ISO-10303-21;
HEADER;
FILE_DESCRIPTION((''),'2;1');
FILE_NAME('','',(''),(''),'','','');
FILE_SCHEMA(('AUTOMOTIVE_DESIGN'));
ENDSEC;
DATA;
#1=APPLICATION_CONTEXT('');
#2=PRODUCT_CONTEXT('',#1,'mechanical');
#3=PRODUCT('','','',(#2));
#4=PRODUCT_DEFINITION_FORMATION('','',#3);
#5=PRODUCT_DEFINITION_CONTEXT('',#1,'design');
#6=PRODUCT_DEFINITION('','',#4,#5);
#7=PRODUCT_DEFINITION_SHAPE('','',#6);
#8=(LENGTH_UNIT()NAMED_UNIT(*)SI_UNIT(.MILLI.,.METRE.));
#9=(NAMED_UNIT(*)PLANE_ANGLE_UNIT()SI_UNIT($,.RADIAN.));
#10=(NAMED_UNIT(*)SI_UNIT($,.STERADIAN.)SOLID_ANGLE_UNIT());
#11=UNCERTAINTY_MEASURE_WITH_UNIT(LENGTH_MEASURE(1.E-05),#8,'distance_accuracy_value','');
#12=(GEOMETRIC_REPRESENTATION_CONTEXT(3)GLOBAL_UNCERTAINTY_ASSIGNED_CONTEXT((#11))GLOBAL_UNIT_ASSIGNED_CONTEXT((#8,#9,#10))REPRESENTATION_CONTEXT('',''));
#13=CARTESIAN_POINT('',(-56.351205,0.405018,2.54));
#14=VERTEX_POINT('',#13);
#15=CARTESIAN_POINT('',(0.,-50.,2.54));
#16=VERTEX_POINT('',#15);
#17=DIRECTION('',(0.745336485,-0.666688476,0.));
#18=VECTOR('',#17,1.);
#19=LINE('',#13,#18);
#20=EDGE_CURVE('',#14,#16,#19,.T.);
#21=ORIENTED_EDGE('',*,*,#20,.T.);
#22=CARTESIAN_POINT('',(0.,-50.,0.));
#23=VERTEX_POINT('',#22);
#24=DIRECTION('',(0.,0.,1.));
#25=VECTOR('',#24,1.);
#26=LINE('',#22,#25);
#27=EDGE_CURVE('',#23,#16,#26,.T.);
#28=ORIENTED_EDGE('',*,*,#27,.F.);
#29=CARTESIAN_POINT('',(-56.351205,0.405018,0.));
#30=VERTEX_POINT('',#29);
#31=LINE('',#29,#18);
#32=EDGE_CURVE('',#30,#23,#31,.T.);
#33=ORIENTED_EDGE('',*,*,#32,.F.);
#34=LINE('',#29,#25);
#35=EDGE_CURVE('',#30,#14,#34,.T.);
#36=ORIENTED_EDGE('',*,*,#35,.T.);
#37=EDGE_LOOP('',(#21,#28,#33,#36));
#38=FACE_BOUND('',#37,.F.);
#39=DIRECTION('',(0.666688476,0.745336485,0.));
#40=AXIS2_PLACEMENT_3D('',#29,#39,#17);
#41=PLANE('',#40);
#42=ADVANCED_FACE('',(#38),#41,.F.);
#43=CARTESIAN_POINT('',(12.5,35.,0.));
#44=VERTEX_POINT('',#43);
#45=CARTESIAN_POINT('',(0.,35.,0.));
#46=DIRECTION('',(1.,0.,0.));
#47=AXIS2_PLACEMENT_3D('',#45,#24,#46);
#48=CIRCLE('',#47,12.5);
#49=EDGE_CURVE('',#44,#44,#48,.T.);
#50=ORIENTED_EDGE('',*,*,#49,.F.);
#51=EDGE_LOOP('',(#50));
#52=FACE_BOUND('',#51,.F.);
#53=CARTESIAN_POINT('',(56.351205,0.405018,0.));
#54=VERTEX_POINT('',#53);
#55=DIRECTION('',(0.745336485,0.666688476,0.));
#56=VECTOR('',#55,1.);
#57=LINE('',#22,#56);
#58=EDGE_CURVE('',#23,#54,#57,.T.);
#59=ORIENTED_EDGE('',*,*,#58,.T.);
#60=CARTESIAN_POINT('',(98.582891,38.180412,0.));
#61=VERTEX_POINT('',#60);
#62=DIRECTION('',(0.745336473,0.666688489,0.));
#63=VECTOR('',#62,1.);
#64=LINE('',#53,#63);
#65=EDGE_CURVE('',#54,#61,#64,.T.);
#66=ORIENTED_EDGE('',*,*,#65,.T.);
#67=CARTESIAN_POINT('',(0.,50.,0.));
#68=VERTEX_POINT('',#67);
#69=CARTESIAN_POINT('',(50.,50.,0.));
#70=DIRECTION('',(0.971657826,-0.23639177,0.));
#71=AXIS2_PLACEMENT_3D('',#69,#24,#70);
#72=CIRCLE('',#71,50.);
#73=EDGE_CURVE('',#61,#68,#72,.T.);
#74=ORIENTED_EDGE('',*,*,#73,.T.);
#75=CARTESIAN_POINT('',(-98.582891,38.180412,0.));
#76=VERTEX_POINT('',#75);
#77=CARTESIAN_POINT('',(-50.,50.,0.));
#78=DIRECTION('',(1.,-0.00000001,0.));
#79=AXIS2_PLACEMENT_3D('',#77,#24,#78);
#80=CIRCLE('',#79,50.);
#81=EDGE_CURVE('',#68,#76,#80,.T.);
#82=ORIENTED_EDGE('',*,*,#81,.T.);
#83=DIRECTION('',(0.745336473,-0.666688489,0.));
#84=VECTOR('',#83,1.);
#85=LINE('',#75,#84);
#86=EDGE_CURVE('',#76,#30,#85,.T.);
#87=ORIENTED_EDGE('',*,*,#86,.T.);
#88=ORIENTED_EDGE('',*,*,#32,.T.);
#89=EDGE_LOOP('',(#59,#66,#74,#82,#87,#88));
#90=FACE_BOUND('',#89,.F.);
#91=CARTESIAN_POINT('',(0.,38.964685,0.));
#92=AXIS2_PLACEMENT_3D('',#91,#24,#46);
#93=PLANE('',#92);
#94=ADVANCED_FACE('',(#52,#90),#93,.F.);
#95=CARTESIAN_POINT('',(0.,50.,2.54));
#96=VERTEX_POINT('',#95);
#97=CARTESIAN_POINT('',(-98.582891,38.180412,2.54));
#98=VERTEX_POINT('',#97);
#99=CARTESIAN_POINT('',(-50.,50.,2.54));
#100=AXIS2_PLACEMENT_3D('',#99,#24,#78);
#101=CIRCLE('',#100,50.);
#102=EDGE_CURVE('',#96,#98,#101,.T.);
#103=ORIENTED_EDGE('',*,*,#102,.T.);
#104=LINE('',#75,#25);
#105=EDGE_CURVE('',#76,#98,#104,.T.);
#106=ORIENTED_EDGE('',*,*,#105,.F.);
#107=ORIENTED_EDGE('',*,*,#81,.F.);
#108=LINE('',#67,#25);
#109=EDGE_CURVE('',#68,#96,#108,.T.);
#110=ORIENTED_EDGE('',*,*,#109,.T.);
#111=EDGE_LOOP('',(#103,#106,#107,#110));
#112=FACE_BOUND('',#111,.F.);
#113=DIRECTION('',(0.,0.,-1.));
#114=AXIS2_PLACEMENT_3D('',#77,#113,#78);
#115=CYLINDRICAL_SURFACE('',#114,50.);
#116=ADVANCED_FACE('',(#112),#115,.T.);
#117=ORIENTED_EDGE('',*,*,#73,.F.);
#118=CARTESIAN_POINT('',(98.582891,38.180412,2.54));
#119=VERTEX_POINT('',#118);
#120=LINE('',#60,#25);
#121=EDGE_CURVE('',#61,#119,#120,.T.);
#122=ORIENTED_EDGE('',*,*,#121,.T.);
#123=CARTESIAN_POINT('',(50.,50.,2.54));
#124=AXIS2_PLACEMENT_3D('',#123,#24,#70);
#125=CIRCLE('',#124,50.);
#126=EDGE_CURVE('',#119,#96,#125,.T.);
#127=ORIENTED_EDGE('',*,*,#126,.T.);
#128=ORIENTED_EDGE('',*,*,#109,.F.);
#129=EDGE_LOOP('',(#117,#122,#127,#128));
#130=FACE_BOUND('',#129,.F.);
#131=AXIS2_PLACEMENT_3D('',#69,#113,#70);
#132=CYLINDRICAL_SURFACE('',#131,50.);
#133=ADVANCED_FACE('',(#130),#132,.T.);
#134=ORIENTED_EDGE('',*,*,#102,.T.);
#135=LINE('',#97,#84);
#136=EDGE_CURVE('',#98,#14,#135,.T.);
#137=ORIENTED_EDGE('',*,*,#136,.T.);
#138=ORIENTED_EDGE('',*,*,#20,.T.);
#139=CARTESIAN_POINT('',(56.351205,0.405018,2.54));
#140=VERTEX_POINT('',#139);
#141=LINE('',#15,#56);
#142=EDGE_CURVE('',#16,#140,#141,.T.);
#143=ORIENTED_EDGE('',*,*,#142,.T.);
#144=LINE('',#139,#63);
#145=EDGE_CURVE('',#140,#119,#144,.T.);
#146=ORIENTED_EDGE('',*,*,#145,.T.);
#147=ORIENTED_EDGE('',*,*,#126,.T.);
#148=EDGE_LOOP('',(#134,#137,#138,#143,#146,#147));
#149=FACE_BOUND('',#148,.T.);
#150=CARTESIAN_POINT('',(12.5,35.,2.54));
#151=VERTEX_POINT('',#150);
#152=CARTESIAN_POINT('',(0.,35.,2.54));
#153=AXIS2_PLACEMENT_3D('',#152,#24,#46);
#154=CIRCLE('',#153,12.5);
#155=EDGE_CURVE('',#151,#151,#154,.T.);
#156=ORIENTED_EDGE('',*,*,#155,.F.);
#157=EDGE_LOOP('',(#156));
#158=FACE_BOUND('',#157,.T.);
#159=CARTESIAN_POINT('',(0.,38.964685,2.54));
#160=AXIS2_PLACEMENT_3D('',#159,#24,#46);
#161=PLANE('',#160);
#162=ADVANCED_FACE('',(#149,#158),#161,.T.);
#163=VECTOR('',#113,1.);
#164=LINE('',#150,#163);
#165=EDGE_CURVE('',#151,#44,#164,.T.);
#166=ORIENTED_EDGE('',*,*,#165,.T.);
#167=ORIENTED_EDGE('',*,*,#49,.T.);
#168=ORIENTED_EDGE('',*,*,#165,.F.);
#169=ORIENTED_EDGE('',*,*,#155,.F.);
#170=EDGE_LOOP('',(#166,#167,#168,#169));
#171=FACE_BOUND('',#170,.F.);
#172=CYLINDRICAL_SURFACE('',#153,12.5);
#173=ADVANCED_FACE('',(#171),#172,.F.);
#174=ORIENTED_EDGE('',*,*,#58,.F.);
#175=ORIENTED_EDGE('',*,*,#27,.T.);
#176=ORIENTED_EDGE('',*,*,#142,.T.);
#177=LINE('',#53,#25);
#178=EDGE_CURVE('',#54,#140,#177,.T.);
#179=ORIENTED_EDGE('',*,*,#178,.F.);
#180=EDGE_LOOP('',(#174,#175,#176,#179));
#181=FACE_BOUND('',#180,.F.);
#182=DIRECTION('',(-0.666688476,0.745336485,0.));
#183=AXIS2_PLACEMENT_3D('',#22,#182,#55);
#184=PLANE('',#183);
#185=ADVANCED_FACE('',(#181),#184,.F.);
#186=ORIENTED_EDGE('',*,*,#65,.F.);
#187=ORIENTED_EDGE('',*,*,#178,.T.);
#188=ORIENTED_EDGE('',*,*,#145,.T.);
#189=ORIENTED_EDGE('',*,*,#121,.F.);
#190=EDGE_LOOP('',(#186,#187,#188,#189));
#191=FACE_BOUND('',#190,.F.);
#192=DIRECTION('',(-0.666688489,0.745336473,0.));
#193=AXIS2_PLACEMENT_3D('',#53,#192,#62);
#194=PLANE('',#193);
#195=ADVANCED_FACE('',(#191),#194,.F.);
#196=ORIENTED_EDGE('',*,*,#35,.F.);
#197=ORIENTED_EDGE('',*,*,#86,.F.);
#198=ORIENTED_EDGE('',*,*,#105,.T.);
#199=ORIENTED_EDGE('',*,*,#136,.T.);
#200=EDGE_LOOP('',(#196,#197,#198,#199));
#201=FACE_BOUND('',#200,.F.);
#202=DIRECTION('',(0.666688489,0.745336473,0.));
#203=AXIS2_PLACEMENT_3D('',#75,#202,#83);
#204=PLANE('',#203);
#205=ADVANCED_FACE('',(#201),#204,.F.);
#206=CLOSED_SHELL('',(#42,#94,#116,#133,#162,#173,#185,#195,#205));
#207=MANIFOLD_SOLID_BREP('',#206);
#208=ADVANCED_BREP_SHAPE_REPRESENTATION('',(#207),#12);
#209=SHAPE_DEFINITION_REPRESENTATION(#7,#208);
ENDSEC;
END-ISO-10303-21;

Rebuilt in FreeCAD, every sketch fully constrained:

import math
import FreeCAD as App
import Part
import Sketcher
from FreeCAD import Vector
Q = App.Units.Quantity

doc = App.newDocument("Part")
body = doc.addObject("PartDesign::Body", "Body")

# Sketch on XY plane
sketch1 = body.newObject("Sketcher::SketchObject", "Sketch")
sketch1.AttachmentSupport = (doc.getObject("XY_Plane"), [""])
sketch1.MapMode = "FlatFace"
sketch1.addGeometry([
    Part.ArcOfCircle(Part.Circle(Vector(50, 50, 0), Vector(0, 0, 1), 50), math.radians(-14), math.radians(180)),  # 0
    Part.ArcOfCircle(Part.Circle(Vector(-50, 50, 0), Vector(0, 0, 1), 50), math.radians(0), math.radians(194)),  # 1
    Part.LineSegment(Vector(-99, 38, 0), Vector(-56, 0, 0)),  # 2
    Part.LineSegment(Vector(-56, 0, 0), Vector(0, -50, 0)),  # 3
    Part.LineSegment(Vector(0, -50, 0), Vector(56, 0, 0)),  # 4
    Part.LineSegment(Vector(56, 0, 0), Vector(99, 38, 0)),  # 5
], False)
sketch1.addConstraint([
    Sketcher.Constraint("Tangent", 0, 2, 1, 1),
    Sketcher.Constraint("Coincident", 1, 2, 2, 1),
    Sketcher.Constraint("Coincident", 2, 2, 3, 1),
    Sketcher.Constraint("Coincident", 3, 2, 4, 1),
    Sketcher.Constraint("Coincident", 4, 2, 5, 1),
    Sketcher.Constraint("Coincident", 5, 2, 0, 1),
    Sketcher.Constraint("Equal", 0, 1),
    Sketcher.Constraint("Symmetric", 0, 2, 3, 2, -1, 1),
    Sketcher.Constraint("Symmetric", 0, 3, 1, 3, -2),
    Sketcher.Constraint("Symmetric", 2, 2, 4, 2, -2),
    Sketcher.Constraint("Parallel", 2, 3),
    Sketcher.Constraint("Parallel", 4, 5),
    Sketcher.Constraint("Radius", 0, Q("50 mm")),
    Sketcher.Constraint("DistanceY", -1, 1, 0, 3, Q("50 mm")),
    Sketcher.Constraint("DistanceX", 1, 2, -1, 1, Q("98.582891 mm")),
    Sketcher.Constraint("DistanceX", 2, 2, 4, 2, Q("112.70241 mm")),
])
pad1 = body.newObject("PartDesign::Pad", "Pad")
pad1.Profile = sketch1
pad1.Length = 2.54

# Sketch on XY plane
sketch2 = body.newObject("Sketcher::SketchObject", "Sketch001")
sketch2.AttachmentSupport = (doc.getObject("XY_Plane"), [""])
sketch2.MapMode = "FlatFace"
sketch2.AttachmentOffset = App.Placement(Vector(0, 0, 2.54), App.Rotation())
sketch2.addGeometry(Part.Circle(Vector(0, 35, 0), Vector(0, 0, 1), 12), False)
sketch2.addConstraint([
    Sketcher.Constraint("PointOnObject", 0, 3, -2),
    Sketcher.Constraint("Diameter", 0, Q("25 mm")),
    Sketcher.Constraint("DistanceY", -1, 1, 0, 3, Q("35 mm")),
])
pocket1 = body.newObject("PartDesign::Pocket", "Pocket")
pocket1.Profile = sketch2
pocket1.Length = 25.4

doc.recompute()
